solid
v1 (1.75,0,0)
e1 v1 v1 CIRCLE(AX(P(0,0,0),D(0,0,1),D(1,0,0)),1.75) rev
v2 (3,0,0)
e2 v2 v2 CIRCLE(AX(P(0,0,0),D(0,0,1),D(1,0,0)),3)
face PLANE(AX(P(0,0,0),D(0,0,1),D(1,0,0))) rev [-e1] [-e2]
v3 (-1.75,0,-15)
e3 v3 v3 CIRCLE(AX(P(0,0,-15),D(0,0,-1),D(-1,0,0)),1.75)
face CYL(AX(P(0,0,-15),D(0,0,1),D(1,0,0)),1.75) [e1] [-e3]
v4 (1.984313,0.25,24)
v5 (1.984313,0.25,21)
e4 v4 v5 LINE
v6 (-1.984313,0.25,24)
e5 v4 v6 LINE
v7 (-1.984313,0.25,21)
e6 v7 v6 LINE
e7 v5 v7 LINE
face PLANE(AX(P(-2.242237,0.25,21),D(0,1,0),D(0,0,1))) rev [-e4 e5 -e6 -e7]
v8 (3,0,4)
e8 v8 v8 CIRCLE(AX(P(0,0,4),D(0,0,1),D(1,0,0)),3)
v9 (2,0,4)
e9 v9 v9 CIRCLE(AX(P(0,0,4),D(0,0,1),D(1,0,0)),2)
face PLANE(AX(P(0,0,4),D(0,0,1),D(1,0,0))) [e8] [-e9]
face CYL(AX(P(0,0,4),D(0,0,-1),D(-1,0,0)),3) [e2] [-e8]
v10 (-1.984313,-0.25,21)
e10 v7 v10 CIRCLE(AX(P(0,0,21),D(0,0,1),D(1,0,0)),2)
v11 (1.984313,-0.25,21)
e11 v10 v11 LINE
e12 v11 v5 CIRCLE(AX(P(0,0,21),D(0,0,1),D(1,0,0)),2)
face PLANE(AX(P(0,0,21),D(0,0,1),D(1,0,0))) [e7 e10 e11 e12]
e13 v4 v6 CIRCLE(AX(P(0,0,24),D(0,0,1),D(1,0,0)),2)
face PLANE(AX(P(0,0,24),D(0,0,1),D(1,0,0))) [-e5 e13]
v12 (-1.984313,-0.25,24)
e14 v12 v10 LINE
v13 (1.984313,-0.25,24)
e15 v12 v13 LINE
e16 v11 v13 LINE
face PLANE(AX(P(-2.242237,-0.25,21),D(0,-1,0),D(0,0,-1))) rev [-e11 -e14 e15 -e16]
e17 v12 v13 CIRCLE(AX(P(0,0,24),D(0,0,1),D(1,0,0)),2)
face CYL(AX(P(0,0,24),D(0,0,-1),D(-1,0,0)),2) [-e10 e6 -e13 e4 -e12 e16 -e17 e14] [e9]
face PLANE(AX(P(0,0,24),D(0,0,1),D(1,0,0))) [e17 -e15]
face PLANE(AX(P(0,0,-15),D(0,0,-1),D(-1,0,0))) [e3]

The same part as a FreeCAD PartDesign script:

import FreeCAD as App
import Part
import Sketcher

V = App.Vector


def add_polygon(sketch, points):
    """Adds a closed chain of lines whose ends are joined by coincident constraints."""
    first, n = sketch.GeometryCount, len(points)
    for a, b in zip(points, points[1:] + points[:1]):
        sketch.addGeometry(Part.LineSegment(App.Vector(*a, 0), App.Vector(*b, 0)), False)
    for i in range(n):
        sketch.addConstraint(Sketcher.Constraint("Coincident", first + i, 2, first + (i + 1) % n, 1))

doc = App.newDocument("Part")
body = doc.addObject("PartDesign::Body", "Body")

# Sketch on XY plane
sketch1 = doc.addObject("Sketcher::SketchObject", "Sketch")
body.addObject(sketch1)
sketch1.AttachmentSupport = (doc.XY_Plane, [""])
sketch1.MapMode = "FlatFace"
sketch1.addGeometry(Part.Circle(V(0, 0, 0), V(0, 0, 1), 3), False)
sketch1.addConstraint([
    Sketcher.Constraint("Coincident", 0, 3, -1, 1),
    Sketcher.Constraint("Diameter", 0, 6.0),
])
pad1 = doc.addObject("PartDesign::Pad", "Pad")
body.addObject(pad1)
pad1.Profile = sketch1
pad1.Length = 4

# Sketch on XY plane
sketch2 = doc.addObject("Sketcher::SketchObject", "Sketch001")
body.addObject(sketch2)
sketch2.AttachmentSupport = (doc.XY_Plane, [""])
sketch2.MapMode = "FlatFace"
sketch2.AttachmentOffset = App.Placement(V(0, 0, 4), App.Rotation())
sketch2.addGeometry(Part.Circle(V(0, 0, 0), V(0, 0, 1), 2), False)
sketch2.addConstraint([
    Sketcher.Constraint("Coincident", 0, 3, -1, 1),
    Sketcher.Constraint("Diameter", 0, 4.0),
])
pad2 = doc.addObject("PartDesign::Pad", "Pad001")
body.addObject(pad2)
pad2.Profile = sketch2
pad2.Length = 20

# Sketch on XY plane
sketch3 = doc.addObject("Sketcher::SketchObject", "Sketch002")
body.addObject(sketch3)
sketch3.AttachmentSupport = (doc.XY_Plane, [""])
sketch3.MapMode = "FlatFace"
sketch3.addGeometry(Part.Circle(V(0, 0, 0), V(0, 0, 1), 1.75), False)
sketch3.addConstraint([
    Sketcher.Constraint("Coincident", 0, 3, -1, 1),
    Sketcher.Constraint("Diameter", 0, 3.5),
])
pad3 = doc.addObject("PartDesign::Pad", "Pad002")
body.addObject(pad3)
pad3.Profile = sketch3
pad3.Length = 15
pad3.Reversed = True

# Sketch on XY plane
sketch4 = doc.addObject("Sketcher::SketchObject", "Sketch003")
body.addObject(sketch4)
sketch4.AttachmentSupport = (doc.XY_Plane, [""])
sketch4.MapMode = "FlatFace"
sketch4.AttachmentOffset = App.Placement(V(0, 0, 24), App.Rotation())
add_polygon(sketch4, [(-2.242237, 0.25), (-2.242237, -0.25), (2.218961, -0.25), (2.218961, 0.25)])  # lines 0-3
sketch4.addConstraint([
    Sketcher.Constraint("Vertical", 0),
    Sketcher.Constraint("Horizontal", 1),
    Sketcher.Constraint("Vertical", 2),
    Sketcher.Constraint("Horizontal", 3),
    Sketcher.Constraint("DistanceY", 0, 2, 0, 1, 0.5),
    Sketcher.Constraint("DistanceY", 0, 2, -1, 1, 0.25),
    Sketcher.Constraint("DistanceX", 1, 1, 1, 2, 4.461198),
    Sketcher.Constraint("DistanceX", -1, 1, 1, 2, 2.218961),
])
pocket1 = doc.addObject("PartDesign::Pocket", "Pocket")
body.addObject(pocket1)
pocket1.Profile = sketch4
pocket1.Length = 3

doc.recompute()
